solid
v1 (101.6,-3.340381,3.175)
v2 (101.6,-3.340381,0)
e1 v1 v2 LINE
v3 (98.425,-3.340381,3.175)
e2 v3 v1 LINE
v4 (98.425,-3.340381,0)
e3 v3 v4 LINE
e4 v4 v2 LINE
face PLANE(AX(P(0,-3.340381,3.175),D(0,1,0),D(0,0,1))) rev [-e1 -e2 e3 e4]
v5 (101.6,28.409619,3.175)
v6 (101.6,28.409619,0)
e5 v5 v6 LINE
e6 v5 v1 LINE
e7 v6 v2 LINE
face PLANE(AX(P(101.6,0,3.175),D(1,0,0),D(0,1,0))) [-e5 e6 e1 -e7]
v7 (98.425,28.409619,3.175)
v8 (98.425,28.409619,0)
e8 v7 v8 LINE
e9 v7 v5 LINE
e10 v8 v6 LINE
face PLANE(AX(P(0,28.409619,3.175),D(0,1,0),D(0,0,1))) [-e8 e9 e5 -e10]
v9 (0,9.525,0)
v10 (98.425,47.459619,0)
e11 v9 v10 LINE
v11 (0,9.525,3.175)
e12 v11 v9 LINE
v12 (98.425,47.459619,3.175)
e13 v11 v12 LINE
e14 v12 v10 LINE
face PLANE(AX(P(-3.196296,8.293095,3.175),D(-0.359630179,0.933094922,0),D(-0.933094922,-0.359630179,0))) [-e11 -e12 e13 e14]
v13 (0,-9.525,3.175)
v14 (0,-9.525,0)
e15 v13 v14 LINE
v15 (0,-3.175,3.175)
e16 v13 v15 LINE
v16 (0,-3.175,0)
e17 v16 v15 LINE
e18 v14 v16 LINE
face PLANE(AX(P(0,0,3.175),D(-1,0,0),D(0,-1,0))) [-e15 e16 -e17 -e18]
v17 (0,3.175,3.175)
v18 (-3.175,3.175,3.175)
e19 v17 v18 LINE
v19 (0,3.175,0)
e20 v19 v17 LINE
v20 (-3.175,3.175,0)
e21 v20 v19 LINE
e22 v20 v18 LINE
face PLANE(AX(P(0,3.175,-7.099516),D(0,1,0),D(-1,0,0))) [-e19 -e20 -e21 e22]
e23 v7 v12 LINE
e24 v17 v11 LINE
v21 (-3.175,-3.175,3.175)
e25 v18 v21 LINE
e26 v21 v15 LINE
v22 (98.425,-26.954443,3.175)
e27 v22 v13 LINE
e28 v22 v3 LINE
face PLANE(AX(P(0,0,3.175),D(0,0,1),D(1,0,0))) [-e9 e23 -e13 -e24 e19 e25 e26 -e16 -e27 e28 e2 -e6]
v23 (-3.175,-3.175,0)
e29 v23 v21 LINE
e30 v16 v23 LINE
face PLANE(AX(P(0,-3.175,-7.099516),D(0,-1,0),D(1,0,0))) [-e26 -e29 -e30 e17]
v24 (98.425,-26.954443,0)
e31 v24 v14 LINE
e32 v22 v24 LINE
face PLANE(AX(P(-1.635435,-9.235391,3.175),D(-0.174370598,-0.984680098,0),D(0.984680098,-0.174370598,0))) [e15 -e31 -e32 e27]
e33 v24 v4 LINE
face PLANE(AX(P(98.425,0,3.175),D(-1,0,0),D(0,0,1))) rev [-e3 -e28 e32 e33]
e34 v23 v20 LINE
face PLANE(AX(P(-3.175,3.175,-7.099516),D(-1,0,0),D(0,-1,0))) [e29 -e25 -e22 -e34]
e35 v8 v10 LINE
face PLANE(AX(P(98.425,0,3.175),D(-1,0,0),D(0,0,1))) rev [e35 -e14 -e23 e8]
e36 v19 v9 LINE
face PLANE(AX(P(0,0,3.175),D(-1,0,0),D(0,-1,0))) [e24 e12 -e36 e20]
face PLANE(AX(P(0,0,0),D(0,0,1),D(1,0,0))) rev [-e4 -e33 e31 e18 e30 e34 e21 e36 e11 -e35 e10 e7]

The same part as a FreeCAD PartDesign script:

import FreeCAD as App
import Part
import Sketcher

V = App.Vector
Q = App.Units.Quantity

doc = App.newDocument("Part")
params = doc.addObject("Spreadsheet::Sheet", "Params")
for row, (alias, value) in enumerate([
    ("sketch1_height", "0.75 in"),
    ("sketch1_width", "0.125 in"),
    ("pad1_length", "0.125 in"),
    ("sketch2_height", "0.25 in"),
    ("sketch2_width", "0.125 in"),
    ("pad2_length", "0.125 in"),
], start=1):
    params.set(f"A{row}", alias)
    params.set(f"B{row}", "=" + value)
    params.setAlias(f"B{row}", alias)

body = doc.addObject("PartDesign::Body", "Body")

sketch1 = body.newObject("Sketcher::SketchObject", "Sketch")
sketch1.AttachmentSupport = (doc.getObject("XY_Plane"), [""])
sketch1.MapMode = "FlatFace"
sketch1.addGeometry(Part.LineSegment(V(0, 9.5, 0), V(0, -9.5, 0)), False)
sketch1.addGeometry(Part.LineSegment(V(0, -9.5, 0), V(98.4, -27, 0)), False)
sketch1.addGeometry(Part.LineSegment(V(98.4, -27, 0), V(98.4, -3.3, 0)), False)
sketch1.addGeometry(Part.LineSegment(V(98.4, -3.3, 0), V(101.6, -3.3, 0)), False)
sketch1.addGeometry(Part.LineSegment(V(101.6, -3.3, 0), V(101.6, 28.4, 0)), False)
sketch1.addGeometry(Part.LineSegment(V(101.6, 28.4, 0), V(98.4, 28.4, 0)), False)
sketch1.addGeometry(Part.LineSegment(V(98.4, 28.4, 0), V(98.4, 47.5, 0)), False)
sketch1.addGeometry(Part.LineSegment(V(98.4, 47.5, 0), V(0, 9.5, 0)), False)
sketch1.addConstraint(Sketcher.Constraint("Coincident", 0, 2, 1, 1))
sketch1.addConstraint(Sketcher.Constraint("Coincident", 1, 2, 2, 1))
sketch1.addConstraint(Sketcher.Constraint("Coincident", 2, 2, 3, 1))
sketch1.addConstraint(Sketcher.Constraint("Coincident", 3, 2, 4, 1))
sketch1.addConstraint(Sketcher.Constraint("Coincident", 4, 2, 5, 1))
sketch1.addConstraint(Sketcher.Constraint("Coincident", 5, 2, 6, 1))
sketch1.addConstraint(Sketcher.Constraint("Coincident", 6, 2, 7, 1))
sketch1.addConstraint(Sketcher.Constraint("Coincident", 7, 2, 0, 1))
sketch1.addConstraint(Sketcher.Constraint("Vertical", 0))
sketch1.addConstraint(Sketcher.Constraint("Vertical", 2))
sketch1.addConstraint(Sketcher.Constraint("Horizontal", 3))
sketch1.addConstraint(Sketcher.Constraint("Vertical", 4))
sketch1.addConstraint(Sketcher.Constraint("Horizontal", 5))
sketch1.addConstraint(Sketcher.Constraint("Vertical", 6))
sketch1.addConstraint(Sketcher.Constraint("Symmetric", 0, 2, 7, 2, -1, 1))
sketch1.addConstraint(Sketcher.Constraint("Vertical", 2, 2, 5, 2))
sketch1.addConstraint(Sketcher.Constraint("Equal", 0, 6))
sketch1.addConstraint(Sketcher.Constraint("DistanceX", -1, 1, 3, 2, Q("4 in")))
sketch1.addConstraint(Sketcher.Constraint("DistanceY", 2, 2, 6, 2, Q("2 in")))
sketch1.addConstraint(Sketcher.Constraint("DistanceY", 0, 2, 0, 1, Q("0.75 in")))
sketch1.addConstraint(Sketcher.Constraint("DistanceX", 3, 1, 3, 2, Q("0.125 in")))
sketch1.addConstraint(Sketcher.Constraint("Distance", 7, 105.482302))
sketch1.addConstraint(Sketcher.Constraint("Distance", 1, 99.956321))
sketch1.setExpression("Constraints[19]", "Params.sketch1_height")
sketch1.setExpression("Constraints[20]", "Params.sketch1_width")
pad1 = body.newObject("PartDesign::Pad", "Pad")
pad1.Profile = sketch1
pad1.setExpression("Length", "Params.pad1_length")

sketch2 = body.newObject("Sketcher::SketchObject", "Sketch001")
sketch2.AttachmentSupport = (doc.getObject("XY_Plane"), [""])
sketch2.MapMode = "FlatFace"
sketch2.AttachmentOffset = App.Placement(V(0, 0, 0.125 * 25.4), App.Rotation())
sketch2.addGeometry(Part.LineSegment(V(-3.2, 3.2, 0), V(-3.2, -3.2, 0)), False)
sketch2.addGeometry(Part.LineSegment(V(-3.2, -3.2, 0), V(0, -3.2, 0)), False)
sketch2.addGeometry(Part.LineSegment(V(0, -3.2, 0), V(0, 3.2, 0)), False)
sketch2.addGeometry(Part.LineSegment(V(0, 3.2, 0), V(-3.2, 3.2, 0)), False)
sketch2.addConstraint(Sketcher.Constraint("Coincident", 0, 2, 1, 1))
sketch2.addConstraint(Sketcher.Constraint("Coincident", 1, 2, 2, 1))
sketch2.addConstraint(Sketcher.Constraint("Coincident", 2, 2, 3, 1))
sketch2.addConstraint(Sketcher.Constraint("Coincident", 3, 2, 0, 1))
sketch2.addConstraint(Sketcher.Constraint("Vertical", 0))
sketch2.addConstraint(Sketcher.Constraint("Horizontal", 1))
sketch2.addConstraint(Sketcher.Constraint("Vertical", 2))
sketch2.addConstraint(Sketcher.Constraint("Horizontal", 3))
sketch2.addConstraint(Sketcher.Constraint("Symmetric", 1, 2, 2, 2, -1, 1))
sketch2.addConstraint(Sketcher.Constraint("DistanceY", 0, 2, 0, 1, Q("0.25 in")))
sketch2.addConstraint(Sketcher.Constraint("DistanceX", 1, 1, 1, 2, Q("0.125 in")))
sketch2.setExpression("Constraints[9]", "Params.sketch2_height")
sketch2.setExpression("Constraints[10]", "Params.sketch2_width")
pad2 = body.newObject("PartDesign::Pad", "Pad001")
pad2.Profile = sketch2
pad2.setExpression("Length", "Params.pad2_length")
pad2.Reversed = True

doc.recompute()
